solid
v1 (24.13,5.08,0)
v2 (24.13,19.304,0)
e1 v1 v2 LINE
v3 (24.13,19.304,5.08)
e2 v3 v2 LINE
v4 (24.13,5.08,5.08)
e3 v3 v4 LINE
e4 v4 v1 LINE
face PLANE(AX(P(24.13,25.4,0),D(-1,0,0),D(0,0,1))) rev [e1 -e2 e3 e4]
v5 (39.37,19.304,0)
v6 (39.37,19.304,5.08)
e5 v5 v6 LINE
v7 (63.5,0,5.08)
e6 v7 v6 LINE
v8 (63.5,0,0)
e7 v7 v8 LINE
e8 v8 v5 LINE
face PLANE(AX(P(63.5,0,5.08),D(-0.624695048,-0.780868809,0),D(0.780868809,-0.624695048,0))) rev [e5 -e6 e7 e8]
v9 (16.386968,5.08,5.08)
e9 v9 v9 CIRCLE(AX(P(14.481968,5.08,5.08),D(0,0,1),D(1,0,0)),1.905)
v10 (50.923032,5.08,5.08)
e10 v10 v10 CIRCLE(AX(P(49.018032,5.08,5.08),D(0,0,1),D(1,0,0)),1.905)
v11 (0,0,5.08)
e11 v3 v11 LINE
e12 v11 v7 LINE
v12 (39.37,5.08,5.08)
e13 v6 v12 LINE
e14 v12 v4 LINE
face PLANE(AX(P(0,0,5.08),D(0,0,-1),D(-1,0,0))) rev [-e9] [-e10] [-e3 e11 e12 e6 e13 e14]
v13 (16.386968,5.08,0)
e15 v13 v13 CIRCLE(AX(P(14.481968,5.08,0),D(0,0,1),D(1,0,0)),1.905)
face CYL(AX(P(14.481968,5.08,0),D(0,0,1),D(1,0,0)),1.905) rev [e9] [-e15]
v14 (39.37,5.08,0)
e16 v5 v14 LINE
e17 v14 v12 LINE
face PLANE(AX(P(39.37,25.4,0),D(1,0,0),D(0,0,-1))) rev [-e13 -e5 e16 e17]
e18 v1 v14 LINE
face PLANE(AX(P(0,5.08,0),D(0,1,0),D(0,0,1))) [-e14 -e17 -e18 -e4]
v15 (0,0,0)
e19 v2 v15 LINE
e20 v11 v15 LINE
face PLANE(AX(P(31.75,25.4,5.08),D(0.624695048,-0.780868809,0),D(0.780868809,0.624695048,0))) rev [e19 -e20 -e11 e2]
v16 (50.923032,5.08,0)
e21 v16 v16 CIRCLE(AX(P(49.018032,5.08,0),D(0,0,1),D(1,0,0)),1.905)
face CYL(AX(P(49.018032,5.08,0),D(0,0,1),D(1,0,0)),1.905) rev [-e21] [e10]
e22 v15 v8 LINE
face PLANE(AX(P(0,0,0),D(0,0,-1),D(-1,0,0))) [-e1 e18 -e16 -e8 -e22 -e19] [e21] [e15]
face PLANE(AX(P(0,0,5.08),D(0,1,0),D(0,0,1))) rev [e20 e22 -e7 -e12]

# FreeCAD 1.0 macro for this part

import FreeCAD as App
import Part
import Sketcher
from FreeCAD import Vector
Q = App.Units.Quantity


def add_polygon(sketch, points):
    """Adds a closed chain of lines whose ends are joined by coincident constraints."""
    first, n = sketch.GeometryCount, len(points)
    for a, b in zip(points, points[1:] + points[:1]):
        sketch.addGeometry(Part.LineSegment(App.Vector(*a, 0), App.Vector(*b, 0)), False)
    for i in range(n):
        sketch.addConstraint(Sketcher.Constraint("Coincident", first + i, 2, first + (i + 1) % n, 1))

doc = App.newDocument("Part")
body = doc.addObject("PartDesign::Body", "Body")

# Sketch on XY plane
sketch1 = doc.addObject("Sketcher::SketchObject", "Sketch")
body.addObject(sketch1)
sketch1.AttachmentSupport = (doc.XY_Plane, [""])
sketch1.MapMode = "FlatFace"
add_polygon(sketch1, [(0, 0), (63.5, 0), (31.75, 25.4)])  # lines 0-2
sketch1.addConstraint([
    Sketcher.Constraint("Horizontal", 0),
    Sketcher.Constraint("Coincident", 2, 2, -1, 1),
    Sketcher.Constraint("Equal", 1, 2),
    Sketcher.Constraint("DistanceX", 0, 1, 0, 2, Q("2.5 in")),
    Sketcher.Constraint("DistanceY", -1, 1, 1, 2, Q("1 in")),
])
pad1 = doc.addObject("PartDesign::Pad", "Pad")
body.addObject(pad1)
pad1.Profile = sketch1
pad1.Length = Q("0.2 in")

# Sketch on XY plane
sketch2 = doc.addObject("Sketcher::SketchObject", "Sketch001")
body.addObject(sketch2)
sketch2.AttachmentSupport = (doc.XY_Plane, [""])
sketch2.MapMode = "FlatFace"
sketch2.AttachmentOffset = App.Placement(Vector(0, 0, 0.2 * 25.4), App.Rotation())
sketch2.addGeometry([
    Part.Circle(Vector(14.481968, 5.08, 0), Vector(0, 0, 1), 1.905),
    Part.Circle(Vector(49.018032, 5.08, 0), Vector(0, 0, 1), 1.905),
], False)
sketch2.addConstraint([
    Sketcher.Constraint("Equal", 0, 1),
    Sketcher.Constraint("Horizontal", 0, 3, 1, 3),
    Sketcher.Constraint("Diameter", 0, Q("0.15 in")),
    Sketcher.Constraint("DistanceY", -1, 1, 0, 3, Q("0.2 in")),
    Sketcher.Constraint("DistanceX", -1, 1, 0, 3, 14.481968),
    Sketcher.Constraint("DistanceX", -1, 1, 1, 3, 49.018032),
])
pocket1 = doc.addObject("PartDesign::Pocket", "Pocket")
body.addObject(pocket1)
pocket1.Profile = sketch2
pocket1.Type = "ThroughAll"

# Sketch on XZ plane
sketch3 = doc.addObject("Sketcher::SketchObject", "Sketch002")
body.addObject(sketch3)
sketch3.AttachmentSupport = (doc.XZ_Plane, [""])
sketch3.MapMode = "FlatFace"
sketch3.AttachmentOffset = App.Placement(Vector(0, 0, -0.2 * 25.4), App.Rotation())
add_polygon(sketch3, [(39.37, 0), (39.37, 5.08), (24.13, 5.08), (24.13, 0)])  # lines 0-3
sketch3.addConstraint([
    Sketcher.Constraint("Vertical", 0),
    Sketcher.Constraint("Horizontal", 1),
    Sketcher.Constraint("Vertical", 2),
    Sketcher.Constraint("Horizontal", 3),
    Sketcher.Constraint("PointOnObject", 2, 2, -1),
    Sketcher.Constraint("DistanceX", 1, 2, 1, 1, Q("0.6 in")),
    Sketcher.Constraint("DistanceY", 0, 1, 0, 2, Q("0.2 in")),
    Sketcher.Constraint("DistanceX", -1, 1, 0, 2, Q("1.55 in")),
])
pocket2 = doc.addObject("PartDesign::Pocket", "Pocket001")
body.addObject(pocket2)
pocket2.Profile = sketch3
pocket2.Type = "ThroughAll"

doc.recompute()
